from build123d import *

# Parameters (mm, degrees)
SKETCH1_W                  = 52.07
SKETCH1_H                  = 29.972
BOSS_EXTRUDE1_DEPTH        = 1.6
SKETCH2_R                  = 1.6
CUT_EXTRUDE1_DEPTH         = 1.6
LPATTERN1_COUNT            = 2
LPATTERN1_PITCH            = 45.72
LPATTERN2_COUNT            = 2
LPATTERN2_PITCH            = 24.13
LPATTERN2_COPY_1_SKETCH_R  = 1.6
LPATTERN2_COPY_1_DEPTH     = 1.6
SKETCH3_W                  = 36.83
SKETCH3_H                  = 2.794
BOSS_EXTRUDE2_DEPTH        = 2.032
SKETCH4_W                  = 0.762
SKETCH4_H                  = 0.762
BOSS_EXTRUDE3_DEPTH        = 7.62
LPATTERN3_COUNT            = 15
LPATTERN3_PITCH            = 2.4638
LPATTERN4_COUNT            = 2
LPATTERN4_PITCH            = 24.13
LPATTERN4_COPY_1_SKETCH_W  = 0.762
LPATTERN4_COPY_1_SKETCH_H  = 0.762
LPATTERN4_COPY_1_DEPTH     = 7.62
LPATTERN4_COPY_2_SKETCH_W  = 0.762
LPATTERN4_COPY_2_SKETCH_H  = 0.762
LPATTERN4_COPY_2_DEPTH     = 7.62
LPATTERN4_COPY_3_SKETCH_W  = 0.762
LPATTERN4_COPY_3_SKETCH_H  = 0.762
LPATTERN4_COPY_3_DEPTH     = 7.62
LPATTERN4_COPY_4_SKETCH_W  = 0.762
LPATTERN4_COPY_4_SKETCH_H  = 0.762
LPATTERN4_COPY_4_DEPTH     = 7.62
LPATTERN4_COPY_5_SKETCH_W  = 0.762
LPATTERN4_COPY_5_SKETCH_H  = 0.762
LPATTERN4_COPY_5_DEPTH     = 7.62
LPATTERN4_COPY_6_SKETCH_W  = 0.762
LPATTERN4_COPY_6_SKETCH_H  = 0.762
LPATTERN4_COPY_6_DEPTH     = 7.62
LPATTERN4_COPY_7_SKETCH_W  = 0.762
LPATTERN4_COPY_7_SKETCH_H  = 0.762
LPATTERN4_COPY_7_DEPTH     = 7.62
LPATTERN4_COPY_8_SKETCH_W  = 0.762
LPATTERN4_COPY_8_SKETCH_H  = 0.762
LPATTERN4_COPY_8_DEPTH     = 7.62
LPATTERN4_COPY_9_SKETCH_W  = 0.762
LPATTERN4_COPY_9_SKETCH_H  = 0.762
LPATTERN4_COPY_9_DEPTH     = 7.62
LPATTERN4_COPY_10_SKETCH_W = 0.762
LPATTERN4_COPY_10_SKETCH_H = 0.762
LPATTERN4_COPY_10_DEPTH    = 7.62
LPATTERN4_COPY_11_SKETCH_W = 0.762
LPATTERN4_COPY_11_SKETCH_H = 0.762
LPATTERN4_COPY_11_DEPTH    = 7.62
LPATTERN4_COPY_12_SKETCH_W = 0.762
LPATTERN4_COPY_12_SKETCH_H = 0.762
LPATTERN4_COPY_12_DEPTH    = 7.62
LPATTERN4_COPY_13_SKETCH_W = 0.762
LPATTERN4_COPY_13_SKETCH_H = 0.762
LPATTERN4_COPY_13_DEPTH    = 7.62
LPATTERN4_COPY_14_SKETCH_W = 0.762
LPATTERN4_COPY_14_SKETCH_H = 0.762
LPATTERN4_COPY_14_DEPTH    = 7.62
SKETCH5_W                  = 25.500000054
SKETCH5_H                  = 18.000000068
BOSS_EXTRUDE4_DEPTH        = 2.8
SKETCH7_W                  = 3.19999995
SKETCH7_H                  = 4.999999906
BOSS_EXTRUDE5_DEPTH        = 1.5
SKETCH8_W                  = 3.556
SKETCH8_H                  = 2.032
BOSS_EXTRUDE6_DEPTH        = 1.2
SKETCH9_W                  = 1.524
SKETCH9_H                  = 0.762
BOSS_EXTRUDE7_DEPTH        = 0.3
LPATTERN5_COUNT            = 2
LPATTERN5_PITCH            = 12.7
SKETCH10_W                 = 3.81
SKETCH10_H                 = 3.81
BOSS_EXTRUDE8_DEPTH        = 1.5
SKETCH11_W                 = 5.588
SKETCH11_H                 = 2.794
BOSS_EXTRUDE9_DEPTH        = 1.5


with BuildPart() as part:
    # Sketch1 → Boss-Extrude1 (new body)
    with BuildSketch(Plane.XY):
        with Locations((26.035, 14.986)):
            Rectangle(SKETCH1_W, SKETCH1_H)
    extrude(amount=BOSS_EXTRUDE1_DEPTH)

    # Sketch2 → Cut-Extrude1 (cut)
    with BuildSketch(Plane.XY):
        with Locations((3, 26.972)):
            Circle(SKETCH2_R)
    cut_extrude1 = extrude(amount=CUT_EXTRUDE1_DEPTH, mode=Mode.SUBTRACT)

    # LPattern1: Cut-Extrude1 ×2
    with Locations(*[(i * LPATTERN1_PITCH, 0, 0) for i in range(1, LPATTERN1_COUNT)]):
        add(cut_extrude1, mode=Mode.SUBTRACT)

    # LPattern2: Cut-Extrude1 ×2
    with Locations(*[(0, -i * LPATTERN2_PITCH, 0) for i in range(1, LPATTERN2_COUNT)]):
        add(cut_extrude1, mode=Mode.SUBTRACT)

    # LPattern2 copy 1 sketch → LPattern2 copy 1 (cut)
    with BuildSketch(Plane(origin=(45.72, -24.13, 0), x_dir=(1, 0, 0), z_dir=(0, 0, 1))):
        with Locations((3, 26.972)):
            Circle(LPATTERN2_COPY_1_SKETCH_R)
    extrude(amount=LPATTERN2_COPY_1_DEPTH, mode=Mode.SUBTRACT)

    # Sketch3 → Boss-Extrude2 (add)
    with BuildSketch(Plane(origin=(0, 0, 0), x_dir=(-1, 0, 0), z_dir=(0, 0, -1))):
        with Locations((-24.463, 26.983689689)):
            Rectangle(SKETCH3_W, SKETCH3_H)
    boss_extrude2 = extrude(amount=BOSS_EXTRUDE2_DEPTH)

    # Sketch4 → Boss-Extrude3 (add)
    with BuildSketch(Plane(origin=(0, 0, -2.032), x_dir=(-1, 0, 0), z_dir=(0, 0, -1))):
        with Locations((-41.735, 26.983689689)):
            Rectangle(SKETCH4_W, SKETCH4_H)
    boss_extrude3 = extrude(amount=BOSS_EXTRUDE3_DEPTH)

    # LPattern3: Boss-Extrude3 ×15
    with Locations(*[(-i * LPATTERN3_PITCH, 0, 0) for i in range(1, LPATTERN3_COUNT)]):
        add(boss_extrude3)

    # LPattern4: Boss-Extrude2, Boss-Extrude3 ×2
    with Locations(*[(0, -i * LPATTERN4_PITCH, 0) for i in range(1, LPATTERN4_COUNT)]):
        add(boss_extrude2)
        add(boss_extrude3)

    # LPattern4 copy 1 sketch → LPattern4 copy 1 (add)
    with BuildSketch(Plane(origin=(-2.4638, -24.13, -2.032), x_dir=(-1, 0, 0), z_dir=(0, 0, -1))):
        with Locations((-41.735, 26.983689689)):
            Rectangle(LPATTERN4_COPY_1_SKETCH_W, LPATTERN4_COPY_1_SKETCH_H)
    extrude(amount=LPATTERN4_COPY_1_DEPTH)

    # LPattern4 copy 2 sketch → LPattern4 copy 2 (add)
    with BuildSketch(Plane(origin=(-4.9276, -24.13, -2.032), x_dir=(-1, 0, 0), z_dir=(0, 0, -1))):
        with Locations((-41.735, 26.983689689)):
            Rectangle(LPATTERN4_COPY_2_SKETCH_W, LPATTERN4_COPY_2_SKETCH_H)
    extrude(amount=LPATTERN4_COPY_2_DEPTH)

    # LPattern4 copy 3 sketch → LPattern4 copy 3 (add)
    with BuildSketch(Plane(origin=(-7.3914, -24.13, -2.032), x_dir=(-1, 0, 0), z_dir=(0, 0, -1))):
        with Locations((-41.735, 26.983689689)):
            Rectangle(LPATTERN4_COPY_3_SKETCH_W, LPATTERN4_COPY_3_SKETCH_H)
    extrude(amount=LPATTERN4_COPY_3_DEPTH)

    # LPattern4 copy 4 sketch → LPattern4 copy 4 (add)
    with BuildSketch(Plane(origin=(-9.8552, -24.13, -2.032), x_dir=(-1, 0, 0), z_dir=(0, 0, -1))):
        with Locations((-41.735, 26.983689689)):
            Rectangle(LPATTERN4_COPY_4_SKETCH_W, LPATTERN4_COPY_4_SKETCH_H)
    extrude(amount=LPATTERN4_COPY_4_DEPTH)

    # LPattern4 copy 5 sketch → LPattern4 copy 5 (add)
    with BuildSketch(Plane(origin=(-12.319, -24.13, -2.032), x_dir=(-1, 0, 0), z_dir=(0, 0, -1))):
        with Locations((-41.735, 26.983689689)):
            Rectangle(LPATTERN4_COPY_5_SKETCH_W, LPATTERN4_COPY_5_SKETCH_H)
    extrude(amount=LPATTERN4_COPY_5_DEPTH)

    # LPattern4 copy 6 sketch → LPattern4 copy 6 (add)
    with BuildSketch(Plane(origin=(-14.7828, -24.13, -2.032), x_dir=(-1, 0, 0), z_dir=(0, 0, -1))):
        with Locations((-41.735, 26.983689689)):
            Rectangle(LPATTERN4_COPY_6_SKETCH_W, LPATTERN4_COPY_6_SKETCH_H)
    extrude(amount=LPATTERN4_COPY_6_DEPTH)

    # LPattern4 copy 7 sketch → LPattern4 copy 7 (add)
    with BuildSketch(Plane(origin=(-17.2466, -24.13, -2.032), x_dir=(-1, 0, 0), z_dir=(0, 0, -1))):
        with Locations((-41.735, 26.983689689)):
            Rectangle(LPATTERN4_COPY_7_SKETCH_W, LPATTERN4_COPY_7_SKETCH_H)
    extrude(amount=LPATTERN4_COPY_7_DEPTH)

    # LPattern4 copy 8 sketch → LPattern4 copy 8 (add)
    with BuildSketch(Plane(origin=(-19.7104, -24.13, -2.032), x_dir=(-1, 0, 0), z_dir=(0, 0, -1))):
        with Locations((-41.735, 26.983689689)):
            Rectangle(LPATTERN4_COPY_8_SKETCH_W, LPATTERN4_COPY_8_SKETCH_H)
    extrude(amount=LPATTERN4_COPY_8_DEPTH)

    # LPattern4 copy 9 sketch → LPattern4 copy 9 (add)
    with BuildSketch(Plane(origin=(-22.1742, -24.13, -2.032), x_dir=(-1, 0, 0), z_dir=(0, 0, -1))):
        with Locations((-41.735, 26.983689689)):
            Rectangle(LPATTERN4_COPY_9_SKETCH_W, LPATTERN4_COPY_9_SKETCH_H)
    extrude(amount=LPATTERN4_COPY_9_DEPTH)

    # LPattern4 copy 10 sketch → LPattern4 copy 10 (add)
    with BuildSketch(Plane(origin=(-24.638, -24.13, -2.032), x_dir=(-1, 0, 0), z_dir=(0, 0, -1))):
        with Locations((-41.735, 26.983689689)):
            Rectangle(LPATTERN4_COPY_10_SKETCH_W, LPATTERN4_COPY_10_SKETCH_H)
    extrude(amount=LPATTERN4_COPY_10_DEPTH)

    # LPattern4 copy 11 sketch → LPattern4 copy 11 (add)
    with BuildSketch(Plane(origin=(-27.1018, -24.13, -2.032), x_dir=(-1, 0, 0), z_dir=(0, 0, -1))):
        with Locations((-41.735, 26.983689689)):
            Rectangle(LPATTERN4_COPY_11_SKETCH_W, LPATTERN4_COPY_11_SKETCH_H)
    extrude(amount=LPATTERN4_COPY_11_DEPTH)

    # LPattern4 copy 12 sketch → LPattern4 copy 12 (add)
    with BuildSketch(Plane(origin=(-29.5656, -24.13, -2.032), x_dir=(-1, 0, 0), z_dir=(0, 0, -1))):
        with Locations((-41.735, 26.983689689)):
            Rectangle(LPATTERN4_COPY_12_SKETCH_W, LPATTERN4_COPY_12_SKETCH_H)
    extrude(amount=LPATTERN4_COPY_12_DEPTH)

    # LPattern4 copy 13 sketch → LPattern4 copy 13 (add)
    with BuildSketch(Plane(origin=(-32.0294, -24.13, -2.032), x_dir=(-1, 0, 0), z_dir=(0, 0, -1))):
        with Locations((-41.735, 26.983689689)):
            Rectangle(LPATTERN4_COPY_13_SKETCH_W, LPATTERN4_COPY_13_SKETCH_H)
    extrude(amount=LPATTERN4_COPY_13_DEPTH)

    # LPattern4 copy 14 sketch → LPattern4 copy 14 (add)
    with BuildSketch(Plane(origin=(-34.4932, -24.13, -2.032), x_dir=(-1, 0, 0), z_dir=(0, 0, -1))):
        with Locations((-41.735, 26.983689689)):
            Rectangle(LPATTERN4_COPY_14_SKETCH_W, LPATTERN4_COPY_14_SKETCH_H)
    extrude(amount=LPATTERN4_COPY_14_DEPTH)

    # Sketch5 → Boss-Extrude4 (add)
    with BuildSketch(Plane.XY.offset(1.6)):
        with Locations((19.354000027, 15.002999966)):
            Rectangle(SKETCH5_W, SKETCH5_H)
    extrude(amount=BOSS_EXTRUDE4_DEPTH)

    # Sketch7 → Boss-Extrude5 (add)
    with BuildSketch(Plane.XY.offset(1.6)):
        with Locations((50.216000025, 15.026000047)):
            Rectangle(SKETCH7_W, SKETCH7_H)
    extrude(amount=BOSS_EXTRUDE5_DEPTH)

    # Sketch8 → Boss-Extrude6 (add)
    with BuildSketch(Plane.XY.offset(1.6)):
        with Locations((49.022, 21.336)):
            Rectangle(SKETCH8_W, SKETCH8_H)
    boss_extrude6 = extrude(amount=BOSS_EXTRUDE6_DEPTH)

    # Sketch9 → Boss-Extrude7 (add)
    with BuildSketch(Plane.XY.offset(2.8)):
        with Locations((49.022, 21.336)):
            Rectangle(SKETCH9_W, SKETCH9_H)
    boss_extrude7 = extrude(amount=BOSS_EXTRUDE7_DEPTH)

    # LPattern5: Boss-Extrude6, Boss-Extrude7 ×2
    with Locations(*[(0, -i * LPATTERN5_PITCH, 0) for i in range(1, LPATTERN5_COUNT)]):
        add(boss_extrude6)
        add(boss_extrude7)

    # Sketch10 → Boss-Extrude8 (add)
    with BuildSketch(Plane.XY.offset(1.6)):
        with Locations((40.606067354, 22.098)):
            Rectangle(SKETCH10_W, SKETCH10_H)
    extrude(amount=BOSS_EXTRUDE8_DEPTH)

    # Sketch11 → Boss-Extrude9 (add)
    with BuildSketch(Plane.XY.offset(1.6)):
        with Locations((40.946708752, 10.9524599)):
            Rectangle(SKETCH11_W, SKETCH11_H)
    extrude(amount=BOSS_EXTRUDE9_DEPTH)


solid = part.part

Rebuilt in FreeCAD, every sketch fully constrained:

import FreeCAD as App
import Part
import Sketcher

V = App.Vector
Q = App.Units.Quantity


def add_polygon(sketch, points):
    """Adds a closed chain of lines whose ends are joined by coincident constraints."""
    first, n = sketch.GeometryCount, len(points)
    for a, b in zip(points, points[1:] + points[:1]):
        sketch.addGeometry(Part.LineSegment(App.Vector(*a, 0), App.Vector(*b, 0)), False)
    for i in range(n):
        sketch.addConstraint(Sketcher.Constraint("Coincident", first + i, 2, first + (i + 1) % n, 1))

doc = App.newDocument("Part")
body = doc.addObject("PartDesign::Body", "Body")

# Sketch on XY plane
sketch1 = body.newObject("Sketcher::SketchObject", "Sketch")
sketch1.AttachmentSupport = (doc.getObject("XY_Plane"), [""])
sketch1.MapMode = "FlatFace"
add_polygon(sketch1, [(0, 30), (0, 0), (52, 0), (52, 30)])  # lines 0-3
sketch1.addConstraint([
    Sketcher.Constraint("Vertical", 0),
    Sketcher.Constraint("Horizontal", 1),
    Sketcher.Constraint("Vertical", 2),
    Sketcher.Constraint("Horizontal", 3),
    Sketcher.Constraint("Coincident", 0, 2, -1, 1),
    Sketcher.Constraint("DistanceX", 1, 1, 1, 2, Q("2.05 in")),
    Sketcher.Constraint("DistanceY", 0, 2, 0, 1, Q("1.18 in")),
])
pad1 = body.newObject("PartDesign::Pad", "Pad")
pad1.Profile = sketch1
pad1.Length = 1.6

# Sketch on XY plane
sketch2 = body.newObject("Sketcher::SketchObject", "Sketch001")
sketch2.AttachmentSupport = (doc.getObject("XY_Plane"), [""])
sketch2.MapMode = "FlatFace"
sketch2.addGeometry(Part.Circle(V(3, 27, 0), V(0, 0, 1), 1.6), False)
sketch2.addConstraint([
    Sketcher.Constraint("Diameter", 0, 3.2),
    Sketcher.Constraint("DistanceX", -1, 1, 0, 3, 3.0),
    Sketcher.Constraint("DistanceY", -1, 1, 0, 3, 26.972),
])
pocket1 = body.newObject("PartDesign::Pocket", "Pocket")
pocket1.Profile = sketch2
pocket1.Length = 1.6
pocket1.Reversed = True
doc.recompute()

linearpattern = body.newObject("PartDesign::LinearPattern", "LinearPattern")
linearpattern.Originals = [pocket1]
linearpattern.Direction = (doc.getObject("X_Axis"), [""])
linearpattern.Mode = "offset"
linearpattern.Offset = Q("1.8 in")
linearpattern.Occurrences = 2
body.Tip = linearpattern
doc.recompute()

linearpattern2 = body.newObject("PartDesign::LinearPattern", "LinearPattern001")
linearpattern2.Originals = [pocket1]
linearpattern2.Direction = (doc.getObject("Y_Axis"), [""])
linearpattern2.Mode = "offset"
linearpattern2.Offset = Q("0.95 in")
linearpattern2.Occurrences = 2
linearpattern2.Reversed = True
body.Tip = linearpattern2

# Sketch on XY plane
sketch3 = body.newObject("Sketcher::SketchObject", "Sketch002")
sketch3.AttachmentSupport = (doc.getObject("XY_Plane"), [""])
sketch3.MapMode = "FlatFace"
sketch3.addGeometry(Part.Circle(V(48.7, 2.8, 0), V(0, 0, 1), 1.6), False)
sketch3.addConstraint([
    Sketcher.Constraint("Diameter", 0, 3.2),
    Sketcher.Constraint("DistanceX", -1, 1, 0, 3, 48.72),
    Sketcher.Constraint("DistanceY", -1, 1, 0, 3, 2.842),
])
pocket2 = body.newObject("PartDesign::Pocket", "Pocket001")
pocket2.Profile = sketch3
pocket2.Length = 1.6
pocket2.Reversed = True

# Sketch on XY plane
sketch4 = body.newObject("Sketcher::SketchObject", "Sketch003")
sketch4.AttachmentSupport = (doc.getObject("XY_Plane"), [""])
sketch4.MapMode = "FlatFace"
add_polygon(sketch4, [(42.9, 28.4), (42.9, 25.6), (6, 25.6), (6, 28.4)])  # lines 0-3
sketch4.addConstraint([
    Sketcher.Constraint("Vertical", 0),
    Sketcher.Constraint("Horizontal", 1),
    Sketcher.Constraint("Vertical", 2),
    Sketcher.Constraint("Horizontal", 3),
    Sketcher.Constraint("DistanceX", 1, 2, 1, 1, Q("1.45 in")),
    Sketcher.Constraint("DistanceY", 0, 2, 0, 1, Q("0.11 in")),
    Sketcher.Constraint("DistanceX", -1, 1, 0, 2, 42.878),
    Sketcher.Constraint("DistanceY", -1, 1, 0, 2, 25.58669),
])
pad2 = body.newObject("PartDesign::Pad", "Pad001")
pad2.Profile = sketch4
pad2.Length = Q("0.08 in")
pad2.Reversed = True

# Sketch on XY plane
sketch5 = body.newObject("Sketcher::SketchObject", "Sketch004")
sketch5.AttachmentSupport = (doc.getObject("XY_Plane"), [""])
sketch5.MapMode = "FlatFace"
sketch5.AttachmentOffset = App.Placement(V(0, 0, -0.08 * 25.4), App.Rotation())
add_polygon(sketch5, [(42.1, 27.4), (42.1, 26.6), (41.4, 26.6), (41.4, 27.4)])  # lines 0-3
sketch5.addConstraint([
    Sketcher.Constraint("Vertical", 0),
    Sketcher.Constraint("Horizontal", 1),
    Sketcher.Constraint("Vertical", 2),
    Sketcher.Constraint("Horizontal", 3),
    Sketcher.Constraint("Equal", 3, 0),
    Sketcher.Constraint("DistanceX", 1, 2, 1, 1, Q("0.03 in")),
    Sketcher.Constraint("DistanceX", -1, 1, 0, 2, 42.116),
    Sketcher.Constraint("DistanceY", -1, 1, 0, 2, 26.60269),
])
pad3 = body.newObject("PartDesign::Pad", "Pad002")
pad3.Profile = sketch5
pad3.Length = Q("0.3 in")
pad3.Reversed = True
doc.recompute()

linearpattern3 = body.newObject("PartDesign::LinearPattern", "LinearPattern002")
linearpattern3.Originals = [pad3]
linearpattern3.Direction = (doc.getObject("X_Axis"), [""])
linearpattern3.Mode = "offset"
linearpattern3.Offset = Q("0.097 in")
linearpattern3.Occurrences = 15
linearpattern3.Reversed = True
body.Tip = linearpattern3
doc.recompute()

linearpattern4 = body.newObject("PartDesign::LinearPattern", "LinearPattern003")
linearpattern4.Originals = [pad2, pad3]
linearpattern4.Direction = (doc.getObject("Y_Axis"), [""])
linearpattern4.Mode = "offset"
linearpattern4.Offset = Q("0.95 in")
linearpattern4.Occurrences = 2
linearpattern4.Reversed = True
body.Tip = linearpattern4

# Sketch on XY plane
sketch6 = body.newObject("Sketcher::SketchObject", "Sketch005")
sketch6.AttachmentSupport = (doc.getObject("XY_Plane"), [""])
sketch6.MapMode = "FlatFace"
sketch6.AttachmentOffset = App.Placement(V(0, 0, -0.08 * 25.4), App.Rotation())
add_polygon(sketch6, [(39.7, 3.2), (39.7, 2.5), (38.9, 2.5), (38.9, 3.2)])  # lines 0-3
sketch6.addConstraint([
    Sketcher.Constraint("Vertical", 0),
    Sketcher.Constraint("Horizontal", 1),
    Sketcher.Constraint("Vertical", 2),
    Sketcher.Constraint("Horizontal", 3),
    Sketcher.Constraint("Equal", 3, 0),
    Sketcher.Constraint("DistanceX", 1, 2, 1, 1, Q("0.03 in")),
    Sketcher.Constraint("DistanceX", -1, 1, 0, 2, 39.6522),
    Sketcher.Constraint("DistanceY", -1, 1, 0, 2, 2.47269),
])
pad4 = body.newObject("PartDesign::Pad", "Pad003")
pad4.Profile = sketch6
pad4.Length = Q("0.3 in")
pad4.Reversed = True

# Sketch on XY plane
sketch7 = body.newObject("Sketcher::SketchObject", "Sketch006")
sketch7.AttachmentSupport = (doc.getObject("XY_Plane"), [""])
sketch7.MapMode = "FlatFace"
sketch7.AttachmentOffset = App.Placement(V(0, 0, -0.08 * 25.4), App.Rotation())
add_polygon(sketch7, [(37.2, 3.2), (37.2, 2.5), (36.4, 2.5), (36.4, 3.2)])  # lines 0-3
sketch7.addConstraint([
    Sketcher.Constraint("Vertical", 0),
    Sketcher.Constraint("Horizontal", 1),
    Sketcher.Constraint("Vertical", 2),
    Sketcher.Constraint("Horizontal", 3),
    Sketcher.Constraint("Equal", 3, 0),
    Sketcher.Constraint("DistanceX", 1, 2, 1, 1, Q("0.03 in")),
    Sketcher.Constraint("DistanceX", -1, 1, 0, 2, 37.1884),
    Sketcher.Constraint("DistanceY", -1, 1, 0, 2, 2.47269),
])
pad5 = body.newObject("PartDesign::Pad", "Pad004")
pad5.Profile = sketch7
pad5.Length = Q("0.3 in")
pad5.Reversed = True

# Sketch on XY plane
sketch8 = body.newObject("Sketcher::SketchObject", "Sketch007")
sketch8.AttachmentSupport = (doc.getObject("XY_Plane"), [""])
sketch8.MapMode = "FlatFace"
sketch8.AttachmentOffset = App.Placement(V(0, 0, -0.08 * 25.4), App.Rotation())
add_polygon(sketch8, [(34.7, 3.2), (34.7, 2.5), (34, 2.5), (34, 3.2)])  # lines 0-3
sketch8.addConstraint([
    Sketcher.Constraint("Vertical", 0),
    Sketcher.Constraint("Horizontal", 1),
    Sketcher.Constraint("Vertical", 2),
    Sketcher.Constraint("Horizontal", 3),
    Sketcher.Constraint("Equal", 3, 0),
    Sketcher.Constraint("DistanceX", 1, 2, 1, 1, Q("0.03 in")),
    Sketcher.Constraint("DistanceX", -1, 1, 0, 2, 34.7246),
    Sketcher.Constraint("DistanceY", -1, 1, 0, 2, 2.47269),
])
pad6 = body.newObject("PartDesign::Pad", "Pad005")
pad6.Profile = sketch8
pad6.Length = Q("0.3 in")
pad6.Reversed = True

# Sketch on XY plane
sketch9 = body.newObject("Sketcher::SketchObject", "Sketch008")
sketch9.AttachmentSupport = (doc.getObject("XY_Plane"), [""])
sketch9.MapMode = "FlatFace"
sketch9.AttachmentOffset = App.Placement(V(0, 0, -0.08 * 25.4), App.Rotation())
add_polygon(sketch9, [(32.3, 3.2), (32.3, 2.5), (31.5, 2.5), (31.5, 3.2)])  # lines 0-3
sketch9.addConstraint([
    Sketcher.Constraint("Vertical", 0),
    Sketcher.Constraint("Horizontal", 1),
    Sketcher.Constraint("Vertical", 2),
    Sketcher.Constraint("Horizontal", 3),
    Sketcher.Constraint("Equal", 3, 0),
    Sketcher.Constraint("DistanceX", 1, 2, 1, 1, Q("0.03 in")),
    Sketcher.Constraint("DistanceX", -1, 1, 0, 2, 32.2608),
    Sketcher.Constraint("DistanceY", -1, 1, 0, 2, 2.47269),
])
pad7 = body.newObject("PartDesign::Pad", "Pad006")
pad7.Profile = sketch9
pad7.Length = Q("0.3 in")
pad7.Reversed = True

# Sketch on XY plane
sketch10 = body.newObject("Sketcher::SketchObject", "Sketch009")
sketch10.AttachmentSupport = (doc.getObject("XY_Plane"), [""])
sketch10.MapMode = "FlatFace"
sketch10.AttachmentOffset = App.Placement(V(0, 0, -0.08 * 25.4), App.Rotation())
add_polygon(sketch10, [(29.8, 3.2), (29.8, 2.5), (29, 2.5), (29, 3.2)])  # lines 0-3
sketch10.addConstraint([
    Sketcher.Constraint("Vertical", 0),
    Sketcher.Constraint("Horizontal", 1),
    Sketcher.Constraint("Vertical", 2),
    Sketcher.Constraint("Horizontal", 3),
    Sketcher.Constraint("Equal", 3, 0),
    Sketcher.Constraint("DistanceX", 1, 2, 1, 1, Q("0.03 in")),
    Sketcher.Constraint("DistanceX", -1, 1, 0, 2, 29.797),
    Sketcher.Constraint("DistanceY", -1, 1, 0, 2, 2.47269),
])
pad8 = body.newObject("PartDesign::Pad", "Pad007")
pad8.Profile = sketch10
pad8.Length = Q("0.3 in")
pad8.Reversed = True

# Sketch on XY plane
sketch11 = body.newObject("Sketcher::SketchObject", "Sketch010")
sketch11.AttachmentSupport = (doc.getObject("XY_Plane"), [""])
sketch11.MapMode = "FlatFace"
sketch11.AttachmentOffset = App.Placement(V(0, 0, -0.08 * 25.4), App.Rotation())
add_polygon(sketch11, [(27.3, 3.2), (27.3, 2.5), (26.6, 2.5), (26.6, 3.2)])  # lines 0-3
sketch11.addConstraint([
    Sketcher.Constraint("Vertical", 0),
    Sketcher.Constraint("Horizontal", 1),
    Sketcher.Constraint("Vertical", 2),
    Sketcher.Constraint("Horizontal", 3),
    Sketcher.Constraint("Equal", 3, 0),
    Sketcher.Constraint("DistanceX", 1, 2, 1, 1, Q("0.03 in")),
    Sketcher.Constraint("DistanceX", -1, 1, 0, 2, 27.3332),
    Sketcher.Constraint("DistanceY", -1, 1, 0, 2, 2.47269),
])
pad9 = body.newObject("PartDesign::Pad", "Pad008")
pad9.Profile = sketch11
pad9.Length = Q("0.3 in")
pad9.Reversed = True

# Sketch on XY plane
sketch12 = body.newObject("Sketcher::SketchObject", "Sketch011")
sketch12.AttachmentSupport = (doc.getObject("XY_Plane"), [""])
sketch12.MapMode = "FlatFace"
sketch12.AttachmentOffset = App.Placement(V(0, 0, -0.08 * 25.4), App.Rotation())
add_polygon(sketch12, [(24.9, 3.2), (24.9, 2.5), (24.1, 2.5), (24.1, 3.2)])  # lines 0-3
sketch12.addConstraint([
    Sketcher.Constraint("Vertical", 0),
    Sketcher.Constraint("Horizontal", 1),
    Sketcher.Constraint("Vertical", 2),
    Sketcher.Constraint("Horizontal", 3),
    Sketcher.Constraint("Equal", 3, 0),
    Sketcher.Constraint("DistanceX", 1, 2, 1, 1, Q("0.03 in")),
    Sketcher.Constraint("DistanceX", -1, 1, 0, 2, 24.8694),
    Sketcher.Constraint("DistanceY", -1, 1, 0, 2, 2.47269),
])
pad10 = body.newObject("PartDesign::Pad", "Pad009")
pad10.Profile = sketch12
pad10.Length = Q("0.3 in")
pad10.Reversed = True

# Sketch on XY plane
sketch13 = body.newObject("Sketcher::SketchObject", "Sketch012")
sketch13.AttachmentSupport = (doc.getObject("XY_Plane"), [""])
sketch13.MapMode = "FlatFace"
sketch13.AttachmentOffset = App.Placement(V(0, 0, -0.08 * 25.4), App.Rotation())
add_polygon(sketch13, [(22.4, 3.2), (22.4, 2.5), (21.6, 2.5), (21.6, 3.2)])  # lines 0-3
sketch13.addConstraint([
    Sketcher.Constraint("Vertical", 0),
    Sketcher.Constraint("Horizontal", 1),
    Sketcher.Constraint("Vertical", 2),
    Sketcher.Constraint("Horizontal", 3),
    Sketcher.Constraint("Equal", 3, 0),
    Sketcher.Constraint("DistanceX", 1, 2, 1, 1, Q("0.03 in")),
    Sketcher.Constraint("DistanceX", -1, 1, 0, 2, 22.4056),
    Sketcher.Constraint("DistanceY", -1, 1, 0, 2, 2.47269),
])
pad11 = body.newObject("PartDesign::Pad", "Pad010")
pad11.Profile = sketch13
pad11.Length = Q("0.3 in")
pad11.Reversed = True

# Sketch on XY plane
sketch14 = body.newObject("Sketcher::SketchObject", "Sketch013")
sketch14.AttachmentSupport = (doc.getObject("XY_Plane"), [""])
sketch14.MapMode = "FlatFace"
sketch14.AttachmentOffset = App.Placement(V(0, 0, -0.08 * 25.4), App.Rotation())
add_polygon(sketch14, [(19.9, 3.2), (19.9, 2.5), (19.2, 2.5), (19.2, 3.2)])  # lines 0-3
sketch14.addConstraint([
    Sketcher.Constraint("Vertical", 0),
    Sketcher.Constraint("Horizontal", 1),
    Sketcher.Constraint("Vertical", 2),
    Sketcher.Constraint("Horizontal", 3),
    Sketcher.Constraint("Equal", 3, 0),
    Sketcher.Constraint("DistanceX", 1, 2, 1, 1, Q("0.03 in")),
    Sketcher.Constraint("DistanceX", -1, 1, 0, 2, 19.9418),
    Sketcher.Constraint("DistanceY", -1, 1, 0, 2, 2.47269),
])
pad12 = body.newObject("PartDesign::Pad", "Pad011")
pad12.Profile = sketch14
pad12.Length = Q("0.3 in")
pad12.Reversed = True

# Sketch on XY plane
sketch15 = body.newObject("Sketcher::SketchObject", "Sketch014")
sketch15.AttachmentSupport = (doc.getObject("XY_Plane"), [""])
sketch15.MapMode = "FlatFace"
sketch15.AttachmentOffset = App.Placement(V(0, 0, -0.08 * 25.4), App.Rotation())
add_polygon(sketch15, [(17.5, 3.2), (17.5, 2.5), (16.7, 2.5), (16.7, 3.2)])  # lines 0-3
sketch15.addConstraint([
    Sketcher.Constraint("Vertical", 0),
    Sketcher.Constraint("Horizontal", 1),
    Sketcher.Constraint("Vertical", 2),
    Sketcher.Constraint("Horizontal", 3),
    Sketcher.Constraint("Equal", 3, 0),
    Sketcher.Constraint("DistanceX", 1, 2, 1, 1, Q("0.03 in")),
    Sketcher.Constraint("DistanceX", -1, 1, 0, 2, 17.478),
    Sketcher.Constraint("DistanceY", -1, 1, 0, 2, 2.47269),
])
pad13 = body.newObject("PartDesign::Pad", "Pad012")
pad13.Profile = sketch15
pad13.Length = Q("0.3 in")
pad13.Reversed = True

# Sketch on XY plane
sketch16 = body.newObject("Sketcher::SketchObject", "Sketch015")
sketch16.AttachmentSupport = (doc.getObject("XY_Plane"), [""])
sketch16.MapMode = "FlatFace"
sketch16.AttachmentOffset = App.Placement(V(0, 0, -0.08 * 25.4), App.Rotation())
add_polygon(sketch16, [(15, 3.2), (15, 2.5), (14.3, 2.5), (14.3, 3.2)])  # lines 0-3
sketch16.addConstraint([
    Sketcher.Constraint("Vertical", 0),
    Sketcher.Constraint("Horizontal", 1),
    Sketcher.Constraint("Vertical", 2),
    Sketcher.Constraint("Horizontal", 3),
    Sketcher.Constraint("Equal", 3, 0),
    Sketcher.Constraint("DistanceX", 1, 2, 1, 1, Q("0.03 in")),
    Sketcher.Constraint("DistanceX", -1, 1, 0, 2, 15.0142),
    Sketcher.Constraint("DistanceY", -1, 1, 0, 2, 2.47269),
])
pad14 = body.newObject("PartDesign::Pad", "Pad013")
pad14.Profile = sketch16
pad14.Length = Q("0.3 in")
pad14.Reversed = True

# Sketch on XY plane
sketch17 = body.newObject("Sketcher::SketchObject", "Sketch016")
sketch17.AttachmentSupport = (doc.getObject("XY_Plane"), [""])
sketch17.MapMode = "FlatFace"
sketch17.AttachmentOffset = App.Placement(V(0, 0, -0.08 * 25.4), App.Rotation())
add_polygon(sketch17, [(12.6, 3.2), (12.6, 2.5), (11.8, 2.5), (11.8, 3.2)])  # lines 0-3
sketch17.addConstraint([
    Sketcher.Constraint("Vertical", 0),
    Sketcher.Constraint("Horizontal", 1),
    Sketcher.Constraint("Vertical", 2),
    Sketcher.Constraint("Horizontal", 3),
    Sketcher.Constraint("Equal", 3, 0),
    Sketcher.Constraint("DistanceX", 1, 2, 1, 1, Q("0.03 in")),
    Sketcher.Constraint("DistanceX", -1, 1, 0, 2, 12.5504),
    Sketcher.Constraint("DistanceY", -1, 1, 0, 2, 2.47269),
])
pad15 = body.newObject("PartDesign::Pad", "Pad014")
pad15.Profile = sketch17
pad15.Length = Q("0.3 in")
pad15.Reversed = True

# Sketch on XY plane
sketch18 = body.newObject("Sketcher::SketchObject", "Sketch017")
sketch18.AttachmentSupport = (doc.getObject("XY_Plane"), [""])
sketch18.MapMode = "FlatFace"
sketch18.AttachmentOffset = App.Placement(V(0, 0, -0.08 * 25.4), App.Rotation())
add_polygon(sketch18, [(10.1, 3.2), (10.1, 2.5), (9.3, 2.5), (9.3, 3.2)])  # lines 0-3
sketch18.addConstraint([
    Sketcher.Constraint("Vertical", 0),
    Sketcher.Constraint("Horizontal", 1),
    Sketcher.Constraint("Vertical", 2),
    Sketcher.Constraint("Horizontal", 3),
    Sketcher.Constraint("Equal", 3, 0),
    Sketcher.Constraint("DistanceX", 1, 2, 1, 1, Q("0.03 in")),
    Sketcher.Constraint("DistanceX", -1, 1, 0, 2, 10.0866),
    Sketcher.Constraint("DistanceY", -1, 1, 0, 2, 2.47269),
])
pad16 = body.newObject("PartDesign::Pad", "Pad015")
pad16.Profile = sketch18
pad16.Length = Q("0.3 in")
pad16.Reversed = True

# Sketch on XY plane
sketch19 = body.newObject("Sketcher::SketchObject", "Sketch018")
sketch19.AttachmentSupport = (doc.getObject("XY_Plane"), [""])
sketch19.MapMode = "FlatFace"
sketch19.AttachmentOffset = App.Placement(V(0, 0, -0.08 * 25.4), App.Rotation())
add_polygon(sketch19, [(7.6, 3.2), (7.6, 2.5), (6.9, 2.5), (6.9, 3.2)])  # lines 0-3
sketch19.addConstraint([
    Sketcher.Constraint("Vertical", 0),
    Sketcher.Constraint("Horizontal", 1),
    Sketcher.Constraint("Vertical", 2),
    Sketcher.Constraint("Horizontal", 3),
    Sketcher.Constraint("Equal", 3, 0),
    Sketcher.Constraint("DistanceX", 1, 2, 1, 1, Q("0.03 in")),
    Sketcher.Constraint("DistanceX", -1, 1, 0, 2, 7.6228),
    Sketcher.Constraint("DistanceY", -1, 1, 0, 2, 2.47269),
])
pad17 = body.newObject("PartDesign::Pad", "Pad016")
pad17.Profile = sketch19
pad17.Length = Q("0.3 in")
pad17.Reversed = True

# Sketch on XY plane
sketch20 = body.newObject("Sketcher::SketchObject", "Sketch019")
sketch20.AttachmentSupport = (doc.getObject("XY_Plane"), [""])
sketch20.MapMode = "FlatFace"
sketch20.AttachmentOffset = App.Placement(V(0, 0, 1.6), App.Rotation())
add_polygon(sketch20, [(7, 24), (7, 6), (32, 6), (32, 24)])  # lines 0-3
sketch20.addConstraint([
    Sketcher.Constraint("Vertical", 0),
    Sketcher.Constraint("Horizontal", 1),
    Sketcher.Constraint("Vertical", 2),
    Sketcher.Constraint("Horizontal", 3),
    Sketcher.Constraint("DistanceX", -1, 1, 0, 2, Q("0.26 in")),
    Sketcher.Constraint("DistanceY", -1, 1, 2, 2, Q("0.945 in")),
    Sketcher.Constraint("DistanceX", 1, 1, 1, 2, 25.5),
    Sketcher.Constraint("DistanceY", 0, 2, 0, 1, 18.0),
])
pad18 = body.newObject("PartDesign::Pad", "Pad017")
pad18.Profile = sketch20
pad18.Length = 2.8

# Sketch on XY plane
sketch21 = body.newObject("Sketcher::SketchObject", "Sketch020")
sketch21.AttachmentSupport = (doc.getObject("XY_Plane"), [""])
sketch21.MapMode = "FlatFace"
sketch21.AttachmentOffset = App.Placement(V(0, 0, 1.6), App.Rotation())
add_polygon(sketch21, [(48.6, 17.5), (48.6, 12.5), (51.8, 12.5), (51.8, 17.5)])  # lines 0-3
sketch21.addConstraint([
    Sketcher.Constraint("Vertical", 0),
    Sketcher.Constraint("Horizontal", 1),
    Sketcher.Constraint("Vertical", 2),
    Sketcher.Constraint("Horizontal", 3),
    Sketcher.Constraint("DistanceX", -1, 1, 1, 2, Q("2.04 in")),
    Sketcher.Constraint("DistanceY", -1, 1, 2, 2, Q("0.69 in")),
    Sketcher.Constraint("DistanceX", 1, 1, 1, 2, 3.2),
    Sketcher.Constraint("DistanceY", 0, 2, 0, 1, 5.0),
])
pad19 = body.newObject("PartDesign::Pad", "Pad018")
pad19.Profile = sketch21
pad19.Length = 1.5

# Sketch on XY plane
sketch22 = body.newObject("Sketcher::SketchObject", "Sketch021")
sketch22.AttachmentSupport = (doc.getObject("XY_Plane"), [""])
sketch22.MapMode = "FlatFace"
sketch22.AttachmentOffset = App.Placement(V(0, 0, 1.6), App.Rotation())
add_polygon(sketch22, [(47.2, 22.4), (47.2, 20.3), (50.8, 20.3), (50.8, 22.4)])  # lines 0-3
sketch22.addConstraint([
    Sketcher.Constraint("Vertical", 0),
    Sketcher.Constraint("Horizontal", 1),
    Sketcher.Constraint("Vertical", 2),
    Sketcher.Constraint("Horizontal", 3),
    Sketcher.Constraint("DistanceX", -1, 1, 1, 2, Q("2 in")),
    Sketcher.Constraint("DistanceX", 1, 1, 1, 2, Q("0.14 in")),
    Sketcher.Constraint("DistanceY", 0, 2, 0, 1, Q("0.08 in")),
    Sketcher.Constraint("DistanceY", -1, 1, 0, 2, Q("0.8 in")),
])
pad20 = body.newObject("PartDesign::Pad", "Pad019")
pad20.Profile = sketch22
pad20.Length = 1.2

# Sketch on XY plane
sketch23 = body.newObject("Sketcher::SketchObject", "Sketch022")
sketch23.AttachmentSupport = (doc.getObject("XY_Plane"), [""])
sketch23.MapMode = "FlatFace"
sketch23.AttachmentOffset = App.Placement(V(0, 0, 2.8), App.Rotation())
add_polygon(sketch23, [(48.3, 21.7), (48.3, 21), (49.8, 21), (49.8, 21.7)])  # lines 0-3
sketch23.addConstraint([
    Sketcher.Constraint("Vertical", 0),
    Sketcher.Constraint("Horizontal", 1),
    Sketcher.Constraint("Vertical", 2),
    Sketcher.Constraint("Horizontal", 3),
    Sketcher.Constraint("DistanceX", 1, 1, 1, 2, Q("0.06 in")),
    Sketcher.Constraint("DistanceY", 0, 2, 0, 1, Q("0.03 in")),
    Sketcher.Constraint("DistanceX", -1, 1, 0, 2, Q("1.9 in")),
    Sketcher.Constraint("DistanceY", -1, 1, 0, 2, Q("0.825 in")),
])
pad21 = body.newObject("PartDesign::Pad", "Pad020")
pad21.Profile = sketch23
pad21.Length = 0.3
doc.recompute()

linearpattern5 = body.newObject("PartDesign::LinearPattern", "LinearPattern004")
linearpattern5.Originals = [pad20, pad21]
linearpattern5.Direction = (doc.getObject("Y_Axis"), [""])
linearpattern5.Mode = "offset"
linearpattern5.Offset = Q("0.5 in")
linearpattern5.Occurrences = 2
linearpattern5.Reversed = True
body.Tip = linearpattern5

# Sketch on XY plane
sketch24 = body.newObject("Sketcher::SketchObject", "Sketch023")
sketch24.AttachmentSupport = (doc.getObject("XY_Plane"), [""])
sketch24.MapMode = "FlatFace"
sketch24.AttachmentOffset = App.Placement(V(0, 0, 1.6), App.Rotation())
add_polygon(sketch24, [(38.7, 24), (38.7, 20.2), (42.5, 20.2), (42.5, 24)])  # lines 0-3
sketch24.addConstraint([
    Sketcher.Constraint("Vertical", 0),
    Sketcher.Constraint("Horizontal", 1),
    Sketcher.Constraint("Vertical", 2),
    Sketcher.Constraint("Horizontal", 3),
    Sketcher.Constraint("Equal", 3, 0),
    Sketcher.Constraint("DistanceX", 1, 1, 1, 2, Q("0.15 in")),
    Sketcher.Constraint("DistanceY", -1, 1, 0, 2, Q("0.795 in")),
    Sketcher.Constraint("DistanceX", -1, 1, 0, 2, 38.701067),
])
pad22 = body.newObject("PartDesign::Pad", "Pad021")
pad22.Profile = sketch24
pad22.Length = 1.5

# Sketch on XY plane
sketch25 = body.newObject("Sketcher::SketchObject", "Sketch024")
sketch25.AttachmentSupport = (doc.getObject("XY_Plane"), [""])
sketch25.MapMode = "FlatFace"
sketch25.AttachmentOffset = App.Placement(V(0, 0, 1.6), App.Rotation())
add_polygon(sketch25, [(38.2, 12.3), (38.2, 9.6), (43.7, 9.6), (43.7, 12.3)])  # lines 0-3
sketch25.addConstraint([
    Sketcher.Constraint("Vertical", 0),
    Sketcher.Constraint("Horizontal", 1),
    Sketcher.Constraint("Vertical", 2),
    Sketcher.Constraint("Horizontal", 3),
    Sketcher.Constraint("DistanceX", 1, 1, 1, 2, Q("0.22 in")),
    Sketcher.Constraint("DistanceY", 0, 2, 0, 1, Q("0.11 in")),
    Sketcher.Constraint("DistanceX", -1, 1, 0, 2, 38.152709),
    Sketcher.Constraint("DistanceY", -1, 1, 0, 2, 9.55546),
])
pad23 = body.newObject("PartDesign::Pad", "Pad022")
pad23.Profile = sketch25
pad23.Length = 1.5

doc.recompute()
